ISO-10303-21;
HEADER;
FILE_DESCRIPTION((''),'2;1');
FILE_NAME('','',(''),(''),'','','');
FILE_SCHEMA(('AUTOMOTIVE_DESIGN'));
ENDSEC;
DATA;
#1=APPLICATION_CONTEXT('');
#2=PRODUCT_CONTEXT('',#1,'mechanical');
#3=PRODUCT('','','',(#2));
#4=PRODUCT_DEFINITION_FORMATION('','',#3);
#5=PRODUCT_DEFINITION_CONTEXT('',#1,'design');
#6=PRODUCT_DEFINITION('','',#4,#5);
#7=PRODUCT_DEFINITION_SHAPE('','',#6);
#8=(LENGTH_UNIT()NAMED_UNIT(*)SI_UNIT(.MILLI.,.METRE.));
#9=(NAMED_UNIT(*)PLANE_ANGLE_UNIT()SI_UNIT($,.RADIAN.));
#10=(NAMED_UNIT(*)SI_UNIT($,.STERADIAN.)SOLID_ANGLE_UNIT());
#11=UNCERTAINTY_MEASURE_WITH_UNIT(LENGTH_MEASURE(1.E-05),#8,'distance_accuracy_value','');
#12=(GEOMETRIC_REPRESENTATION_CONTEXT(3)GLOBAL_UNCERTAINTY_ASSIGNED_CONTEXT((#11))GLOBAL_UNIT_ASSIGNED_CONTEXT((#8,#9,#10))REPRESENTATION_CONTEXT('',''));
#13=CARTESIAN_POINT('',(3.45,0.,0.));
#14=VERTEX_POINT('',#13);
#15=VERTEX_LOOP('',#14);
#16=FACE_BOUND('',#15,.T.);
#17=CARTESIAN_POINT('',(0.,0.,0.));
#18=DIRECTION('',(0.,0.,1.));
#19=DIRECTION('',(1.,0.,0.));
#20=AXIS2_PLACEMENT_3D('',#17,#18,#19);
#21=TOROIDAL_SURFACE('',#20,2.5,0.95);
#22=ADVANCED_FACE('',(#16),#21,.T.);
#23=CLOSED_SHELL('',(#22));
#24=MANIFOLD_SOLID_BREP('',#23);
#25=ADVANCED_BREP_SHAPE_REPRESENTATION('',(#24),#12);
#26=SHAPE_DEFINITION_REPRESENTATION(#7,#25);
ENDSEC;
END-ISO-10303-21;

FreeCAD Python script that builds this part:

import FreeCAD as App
import Part
import Sketcher

V = App.Vector
Q = App.Units.Quantity

doc = App.newDocument("Part")
body = doc.addObject("PartDesign::Body", "Body")

# Sketch on XZ plane
sketch1 = doc.addObject("Sketcher::SketchObject", "Sketch")
body.addObject(sketch1)
sketch1.AttachmentSupport = (doc.XZ_Plane, [""])
sketch1.MapMode = "FlatFace"
sketch1.addGeometry(Part.Circle(V(2.5, 0, 0), V(0, 0, 1), 0.95), False)
sketch1.addConstraint([
    Sketcher.Constraint("PointOnObject", 0, 3, -1),
    Sketcher.Constraint("Diameter", 0, Q("1.9 mm")),
    Sketcher.Constraint("DistanceX", -1, 1, 0, 3, Q("2.5 mm")),
])
revolution = doc.addObject("PartDesign::Revolution", "Revolution")
body.addObject(revolution)
revolution.Profile = sketch1
revolution.ReferenceAxis = (sketch1, ["V_Axis"])
revolution.Angle = 360

doc.recompute()
